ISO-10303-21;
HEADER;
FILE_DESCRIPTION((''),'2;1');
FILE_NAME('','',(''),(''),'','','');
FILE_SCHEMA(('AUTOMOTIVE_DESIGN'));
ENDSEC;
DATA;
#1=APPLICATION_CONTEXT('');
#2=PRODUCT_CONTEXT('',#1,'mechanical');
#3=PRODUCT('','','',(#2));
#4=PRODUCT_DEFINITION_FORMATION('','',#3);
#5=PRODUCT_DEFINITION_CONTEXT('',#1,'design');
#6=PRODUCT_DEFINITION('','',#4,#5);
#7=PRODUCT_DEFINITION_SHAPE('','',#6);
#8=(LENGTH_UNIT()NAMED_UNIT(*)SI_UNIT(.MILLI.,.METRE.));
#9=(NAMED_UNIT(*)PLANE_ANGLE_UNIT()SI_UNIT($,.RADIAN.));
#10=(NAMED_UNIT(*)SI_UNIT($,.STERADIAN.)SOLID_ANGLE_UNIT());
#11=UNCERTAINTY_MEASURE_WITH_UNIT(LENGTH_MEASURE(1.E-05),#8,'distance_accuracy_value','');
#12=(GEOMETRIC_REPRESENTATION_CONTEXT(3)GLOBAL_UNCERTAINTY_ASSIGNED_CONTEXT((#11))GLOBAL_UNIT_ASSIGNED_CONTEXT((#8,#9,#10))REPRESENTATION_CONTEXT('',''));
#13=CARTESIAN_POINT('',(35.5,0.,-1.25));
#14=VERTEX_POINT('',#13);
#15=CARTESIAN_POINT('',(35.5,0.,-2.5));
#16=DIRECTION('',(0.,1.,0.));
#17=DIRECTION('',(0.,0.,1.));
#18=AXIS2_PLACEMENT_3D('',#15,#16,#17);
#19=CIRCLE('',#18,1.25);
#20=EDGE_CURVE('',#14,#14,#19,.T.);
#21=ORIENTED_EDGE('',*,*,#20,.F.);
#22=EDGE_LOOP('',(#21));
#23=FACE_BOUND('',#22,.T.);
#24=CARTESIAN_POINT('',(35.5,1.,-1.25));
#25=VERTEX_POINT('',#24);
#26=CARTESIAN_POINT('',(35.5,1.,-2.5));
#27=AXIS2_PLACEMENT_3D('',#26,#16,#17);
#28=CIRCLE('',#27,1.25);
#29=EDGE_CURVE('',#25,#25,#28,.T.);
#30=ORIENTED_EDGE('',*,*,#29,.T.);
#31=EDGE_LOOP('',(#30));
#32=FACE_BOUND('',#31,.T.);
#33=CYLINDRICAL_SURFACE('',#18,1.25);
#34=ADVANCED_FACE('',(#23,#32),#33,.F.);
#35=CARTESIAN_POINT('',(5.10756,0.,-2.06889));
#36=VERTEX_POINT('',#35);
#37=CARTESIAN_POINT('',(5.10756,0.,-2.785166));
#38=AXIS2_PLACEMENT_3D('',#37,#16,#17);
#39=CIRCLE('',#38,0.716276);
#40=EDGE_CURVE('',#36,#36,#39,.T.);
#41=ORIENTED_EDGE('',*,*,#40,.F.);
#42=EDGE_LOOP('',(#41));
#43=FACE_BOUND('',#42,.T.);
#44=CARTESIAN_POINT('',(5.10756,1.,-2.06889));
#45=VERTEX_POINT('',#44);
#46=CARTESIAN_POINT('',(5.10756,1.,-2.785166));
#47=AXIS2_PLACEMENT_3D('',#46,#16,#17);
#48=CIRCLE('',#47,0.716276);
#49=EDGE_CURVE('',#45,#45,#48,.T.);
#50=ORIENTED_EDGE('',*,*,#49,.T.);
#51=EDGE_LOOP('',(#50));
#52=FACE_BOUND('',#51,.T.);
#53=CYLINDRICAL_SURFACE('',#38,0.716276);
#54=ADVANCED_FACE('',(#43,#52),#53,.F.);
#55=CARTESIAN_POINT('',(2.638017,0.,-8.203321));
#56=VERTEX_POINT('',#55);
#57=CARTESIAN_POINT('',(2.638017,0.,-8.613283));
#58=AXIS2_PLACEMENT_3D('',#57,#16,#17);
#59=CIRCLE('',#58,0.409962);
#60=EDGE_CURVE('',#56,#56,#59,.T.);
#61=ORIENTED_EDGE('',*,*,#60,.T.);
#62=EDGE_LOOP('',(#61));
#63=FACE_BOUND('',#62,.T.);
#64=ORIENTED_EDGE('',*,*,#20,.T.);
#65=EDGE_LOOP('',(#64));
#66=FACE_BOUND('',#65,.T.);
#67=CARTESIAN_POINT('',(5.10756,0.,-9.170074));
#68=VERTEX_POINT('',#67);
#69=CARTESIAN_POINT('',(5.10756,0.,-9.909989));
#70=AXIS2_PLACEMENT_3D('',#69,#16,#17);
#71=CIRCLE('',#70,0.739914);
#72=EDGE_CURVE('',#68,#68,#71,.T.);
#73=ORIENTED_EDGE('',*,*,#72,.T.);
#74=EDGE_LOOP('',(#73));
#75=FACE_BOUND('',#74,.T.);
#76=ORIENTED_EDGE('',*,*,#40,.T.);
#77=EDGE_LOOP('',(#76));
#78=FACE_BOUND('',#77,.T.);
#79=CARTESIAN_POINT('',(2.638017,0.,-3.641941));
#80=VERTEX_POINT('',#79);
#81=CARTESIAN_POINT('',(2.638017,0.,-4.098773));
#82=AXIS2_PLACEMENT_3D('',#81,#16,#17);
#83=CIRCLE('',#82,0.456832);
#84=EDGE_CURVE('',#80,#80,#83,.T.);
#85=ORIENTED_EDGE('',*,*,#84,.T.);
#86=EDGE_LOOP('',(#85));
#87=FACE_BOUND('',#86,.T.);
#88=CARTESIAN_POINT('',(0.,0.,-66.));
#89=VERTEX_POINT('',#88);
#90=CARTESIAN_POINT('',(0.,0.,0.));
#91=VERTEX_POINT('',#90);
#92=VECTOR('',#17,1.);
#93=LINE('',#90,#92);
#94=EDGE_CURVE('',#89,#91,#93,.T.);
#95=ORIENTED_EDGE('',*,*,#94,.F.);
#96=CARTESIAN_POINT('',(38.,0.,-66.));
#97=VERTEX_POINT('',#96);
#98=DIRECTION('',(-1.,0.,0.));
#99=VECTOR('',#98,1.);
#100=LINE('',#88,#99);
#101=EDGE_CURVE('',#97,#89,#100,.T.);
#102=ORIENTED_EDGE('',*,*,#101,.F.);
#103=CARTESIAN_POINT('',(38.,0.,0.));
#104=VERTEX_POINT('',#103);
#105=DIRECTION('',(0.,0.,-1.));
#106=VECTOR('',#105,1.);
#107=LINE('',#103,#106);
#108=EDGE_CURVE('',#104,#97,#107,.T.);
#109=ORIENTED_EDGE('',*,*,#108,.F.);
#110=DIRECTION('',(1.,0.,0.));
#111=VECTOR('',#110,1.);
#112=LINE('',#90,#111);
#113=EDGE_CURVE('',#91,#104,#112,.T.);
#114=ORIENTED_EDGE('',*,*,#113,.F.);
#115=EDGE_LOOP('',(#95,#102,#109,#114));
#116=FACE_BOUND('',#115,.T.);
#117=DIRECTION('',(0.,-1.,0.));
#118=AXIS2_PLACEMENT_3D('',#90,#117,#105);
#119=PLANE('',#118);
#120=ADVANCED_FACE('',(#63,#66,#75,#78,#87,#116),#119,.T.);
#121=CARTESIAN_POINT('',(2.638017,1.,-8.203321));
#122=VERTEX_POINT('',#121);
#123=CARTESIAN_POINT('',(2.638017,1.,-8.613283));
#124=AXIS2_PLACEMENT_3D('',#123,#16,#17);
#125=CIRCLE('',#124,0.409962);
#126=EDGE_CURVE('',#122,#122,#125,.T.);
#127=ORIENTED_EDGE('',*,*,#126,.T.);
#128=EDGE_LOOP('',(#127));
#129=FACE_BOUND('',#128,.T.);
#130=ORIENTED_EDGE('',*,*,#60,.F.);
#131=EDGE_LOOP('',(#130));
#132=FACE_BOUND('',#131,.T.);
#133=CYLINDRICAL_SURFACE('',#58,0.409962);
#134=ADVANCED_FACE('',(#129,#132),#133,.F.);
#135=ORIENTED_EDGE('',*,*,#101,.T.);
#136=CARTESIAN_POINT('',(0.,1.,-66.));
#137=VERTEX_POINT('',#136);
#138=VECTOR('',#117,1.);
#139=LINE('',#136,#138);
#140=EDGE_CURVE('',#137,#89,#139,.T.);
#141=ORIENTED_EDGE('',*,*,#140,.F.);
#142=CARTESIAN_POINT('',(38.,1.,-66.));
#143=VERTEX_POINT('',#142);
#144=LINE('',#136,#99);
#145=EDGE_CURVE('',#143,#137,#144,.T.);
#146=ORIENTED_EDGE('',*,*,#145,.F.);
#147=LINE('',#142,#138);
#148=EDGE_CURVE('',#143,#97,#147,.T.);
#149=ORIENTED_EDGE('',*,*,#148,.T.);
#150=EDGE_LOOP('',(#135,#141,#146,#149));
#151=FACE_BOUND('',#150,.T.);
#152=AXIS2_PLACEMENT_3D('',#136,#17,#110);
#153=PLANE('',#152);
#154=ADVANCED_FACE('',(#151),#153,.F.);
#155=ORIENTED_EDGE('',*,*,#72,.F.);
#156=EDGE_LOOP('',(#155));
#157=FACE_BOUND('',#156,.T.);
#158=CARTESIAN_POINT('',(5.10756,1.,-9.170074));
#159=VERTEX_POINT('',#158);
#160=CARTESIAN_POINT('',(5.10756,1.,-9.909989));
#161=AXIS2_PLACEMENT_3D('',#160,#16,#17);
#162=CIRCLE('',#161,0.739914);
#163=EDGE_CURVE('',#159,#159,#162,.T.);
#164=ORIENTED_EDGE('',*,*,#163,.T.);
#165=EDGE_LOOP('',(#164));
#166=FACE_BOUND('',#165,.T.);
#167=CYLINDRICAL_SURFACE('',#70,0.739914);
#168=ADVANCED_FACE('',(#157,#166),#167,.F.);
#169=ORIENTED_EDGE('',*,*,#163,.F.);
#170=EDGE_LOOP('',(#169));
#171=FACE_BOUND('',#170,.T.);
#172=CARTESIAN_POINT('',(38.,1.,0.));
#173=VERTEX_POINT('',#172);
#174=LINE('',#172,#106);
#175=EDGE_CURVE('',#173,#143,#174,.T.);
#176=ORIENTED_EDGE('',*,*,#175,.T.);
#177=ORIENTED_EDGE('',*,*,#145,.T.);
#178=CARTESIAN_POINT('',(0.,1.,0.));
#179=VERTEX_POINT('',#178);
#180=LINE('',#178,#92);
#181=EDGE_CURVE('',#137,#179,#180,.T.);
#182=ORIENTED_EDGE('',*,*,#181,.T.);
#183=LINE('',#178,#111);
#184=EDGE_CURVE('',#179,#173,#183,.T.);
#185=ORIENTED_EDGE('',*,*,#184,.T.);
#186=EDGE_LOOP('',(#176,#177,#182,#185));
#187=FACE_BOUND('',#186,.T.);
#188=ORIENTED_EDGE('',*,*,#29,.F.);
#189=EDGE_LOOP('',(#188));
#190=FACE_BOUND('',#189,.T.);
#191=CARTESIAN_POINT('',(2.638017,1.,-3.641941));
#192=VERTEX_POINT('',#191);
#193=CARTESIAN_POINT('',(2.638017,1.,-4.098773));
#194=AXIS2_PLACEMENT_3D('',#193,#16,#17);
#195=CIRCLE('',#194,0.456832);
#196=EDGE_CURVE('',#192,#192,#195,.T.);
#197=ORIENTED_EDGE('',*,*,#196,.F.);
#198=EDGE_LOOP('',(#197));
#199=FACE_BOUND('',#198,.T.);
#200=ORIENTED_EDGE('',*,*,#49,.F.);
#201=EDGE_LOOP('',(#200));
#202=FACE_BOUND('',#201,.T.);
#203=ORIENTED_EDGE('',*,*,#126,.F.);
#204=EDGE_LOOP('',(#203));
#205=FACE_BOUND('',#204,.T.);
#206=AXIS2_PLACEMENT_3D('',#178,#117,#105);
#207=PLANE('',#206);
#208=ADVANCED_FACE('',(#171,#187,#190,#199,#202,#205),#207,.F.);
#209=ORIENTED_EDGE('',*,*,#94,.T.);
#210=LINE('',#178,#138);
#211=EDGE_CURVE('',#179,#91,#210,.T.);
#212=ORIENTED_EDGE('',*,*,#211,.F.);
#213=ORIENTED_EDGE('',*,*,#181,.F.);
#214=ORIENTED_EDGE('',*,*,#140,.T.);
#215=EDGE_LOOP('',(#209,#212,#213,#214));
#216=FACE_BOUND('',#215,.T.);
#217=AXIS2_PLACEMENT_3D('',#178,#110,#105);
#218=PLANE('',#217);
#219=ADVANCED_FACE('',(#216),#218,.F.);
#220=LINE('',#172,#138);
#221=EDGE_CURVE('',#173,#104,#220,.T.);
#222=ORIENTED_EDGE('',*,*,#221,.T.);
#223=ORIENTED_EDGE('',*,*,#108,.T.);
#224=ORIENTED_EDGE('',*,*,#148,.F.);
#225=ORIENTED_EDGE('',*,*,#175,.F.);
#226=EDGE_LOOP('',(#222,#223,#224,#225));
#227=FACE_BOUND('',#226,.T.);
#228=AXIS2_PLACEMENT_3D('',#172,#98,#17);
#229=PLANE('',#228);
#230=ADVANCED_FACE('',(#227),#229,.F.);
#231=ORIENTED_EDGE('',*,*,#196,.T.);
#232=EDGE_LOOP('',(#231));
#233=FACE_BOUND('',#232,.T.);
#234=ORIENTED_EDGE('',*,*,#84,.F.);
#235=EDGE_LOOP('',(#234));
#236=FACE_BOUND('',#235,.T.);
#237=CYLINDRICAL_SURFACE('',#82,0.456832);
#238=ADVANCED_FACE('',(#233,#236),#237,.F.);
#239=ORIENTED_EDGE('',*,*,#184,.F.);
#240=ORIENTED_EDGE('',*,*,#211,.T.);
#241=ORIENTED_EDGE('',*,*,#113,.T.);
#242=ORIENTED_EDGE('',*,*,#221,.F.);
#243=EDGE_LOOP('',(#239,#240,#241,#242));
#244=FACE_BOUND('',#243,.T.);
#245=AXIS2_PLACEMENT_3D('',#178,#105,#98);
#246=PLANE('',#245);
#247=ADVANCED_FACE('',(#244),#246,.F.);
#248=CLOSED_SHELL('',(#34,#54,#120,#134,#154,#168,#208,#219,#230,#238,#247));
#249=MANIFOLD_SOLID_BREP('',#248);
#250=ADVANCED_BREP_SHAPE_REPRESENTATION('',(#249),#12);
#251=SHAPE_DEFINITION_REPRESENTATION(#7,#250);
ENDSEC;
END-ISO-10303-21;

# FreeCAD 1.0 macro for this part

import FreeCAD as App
import Part
import Sketcher
from FreeCAD import Vector

doc = App.newDocument("Part")
body = doc.addObject("PartDesign::Body", "Body")

# Sketch on XZ plane
sketch1 = body.newObject("Sketcher::SketchObject", "Sketch")
sketch1.AttachmentSupport = (doc.getObject("XZ_Plane"), [""])
sketch1.MapMode = "FlatFace"
sketch1.addGeometry([
    Part.LineSegment(Vector(0, -66, 0), Vector(0, 0, 0)),
    Part.LineSegment(Vector(0, 0, 0), Vector(38, 0, 0)),
    Part.LineSegment(Vector(38, 0, 0), Vector(38, -66, 0)),
    Part.LineSegment(Vector(38, -66, 0), Vector(0, -66, 0)),
], False)
sketch1.addConstraint([
    Sketcher.Constraint("Coincident", 0, 2, 1, 1),
    Sketcher.Constraint("Coincident", 1, 2, 2, 1),
    Sketcher.Constraint("Coincident", 2, 2, 3, 1),
    Sketcher.Constraint("Coincident", 3, 2, 0, 1),
    Sketcher.Constraint("Vertical", 0),
    Sketcher.Constraint("Horizontal", 1),
    Sketcher.Constraint("Vertical", 2),
    Sketcher.Constraint("Horizontal", 3),
    Sketcher.Constraint("Coincident", 0, 2, -1, 1),
    Sketcher.Constraint("DistanceX", 1, 1, 1, 2, 38.0),
    Sketcher.Constraint("DistanceY", 0, 1, 0, 2, 66.0),
])
pad1 = body.newObject("PartDesign::Pad", "Pad")
pad1.Profile = sketch1
pad1.Length = 1
pad1.Reversed = True

# Sketch on XZ plane
sketch2 = body.newObject("Sketcher::SketchObject", "Sketch001")
sketch2.AttachmentSupport = (doc.getObject("XZ_Plane"), [""])
sketch2.MapMode = "FlatFace"
sketch2.AttachmentOffset = App.Placement(Vector(0, 0, -1), App.Rotation())
sketch2.addGeometry(Part.Circle(Vector(35.5, -2.5, 0), Vector(0, 0, 1), 1.2), False)
sketch2.addConstraint([
    Sketcher.Constraint("Diameter", 0, 2.5),
    Sketcher.Constraint("DistanceX", -1, 1, 0, 3, 35.5),
    Sketcher.Constraint("DistanceY", 0, 3, -1, 1, 2.5),
])
pocket1 = body.newObject("PartDesign::Pocket", "Pocket")
pocket1.Profile = sketch2
pocket1.Type = "ThroughAll"
pocket1.Reversed = True

# Sketch on XZ plane
sketch3 = body.newObject("Sketcher::SketchObject", "Sketch002")
sketch3.AttachmentSupport = (doc.getObject("XZ_Plane"), [""])
sketch3.MapMode = "FlatFace"
sketch3.AttachmentOffset = App.Placement(Vector(0, 0, -1), App.Rotation())
sketch3.addGeometry([
    Part.Circle(Vector(2.64, -4.1, 0), Vector(0, 0, 1), 0.46),
    Part.Circle(Vector(2.64, -8.61, 0), Vector(0, 0, 1), 0.41),
    Part.Circle(Vector(5.11, -9.91, 0), Vector(0, 0, 1), 0.74),
    Part.Circle(Vector(5.11, -2.79, 0), Vector(0, 0, 1), 0.72),
], False)
sketch3.addConstraint([
    Sketcher.Constraint("Vertical", 0, 3, 1, 3),
    Sketcher.Constraint("Vertical", 2, 3, 3, 3),
    Sketcher.Constraint("Diameter", 2, 1.479828),
    Sketcher.Constraint("Diameter", 0, 0.913664),
    Sketcher.Constraint("Diameter", 1, 0.819924),
    Sketcher.Constraint("Diameter", 3, 1.432553),
    Sketcher.Constraint("DistanceX", -1, 1, 2, 3, 5.10756),
    Sketcher.Constraint("DistanceY", 2, 3, -1, 1, 9.909989),
    Sketcher.Constraint("DistanceY", 1, 3, 0, 3, 4.51451),
    Sketcher.Constraint("DistanceX", -1, 1, 0, 3, 2.638017),
    Sketcher.Constraint("DistanceY", 0, 3, -1, 1, 4.098773),
    Sketcher.Constraint("DistanceY", 3, 3, -1, 1, 2.785166),
])
pocket2 = body.newObject("PartDesign::Pocket", "Pocket001")
pocket2.Profile = sketch3
pocket2.Type = "ThroughAll"
pocket2.Reversed = True

doc.recompute()
